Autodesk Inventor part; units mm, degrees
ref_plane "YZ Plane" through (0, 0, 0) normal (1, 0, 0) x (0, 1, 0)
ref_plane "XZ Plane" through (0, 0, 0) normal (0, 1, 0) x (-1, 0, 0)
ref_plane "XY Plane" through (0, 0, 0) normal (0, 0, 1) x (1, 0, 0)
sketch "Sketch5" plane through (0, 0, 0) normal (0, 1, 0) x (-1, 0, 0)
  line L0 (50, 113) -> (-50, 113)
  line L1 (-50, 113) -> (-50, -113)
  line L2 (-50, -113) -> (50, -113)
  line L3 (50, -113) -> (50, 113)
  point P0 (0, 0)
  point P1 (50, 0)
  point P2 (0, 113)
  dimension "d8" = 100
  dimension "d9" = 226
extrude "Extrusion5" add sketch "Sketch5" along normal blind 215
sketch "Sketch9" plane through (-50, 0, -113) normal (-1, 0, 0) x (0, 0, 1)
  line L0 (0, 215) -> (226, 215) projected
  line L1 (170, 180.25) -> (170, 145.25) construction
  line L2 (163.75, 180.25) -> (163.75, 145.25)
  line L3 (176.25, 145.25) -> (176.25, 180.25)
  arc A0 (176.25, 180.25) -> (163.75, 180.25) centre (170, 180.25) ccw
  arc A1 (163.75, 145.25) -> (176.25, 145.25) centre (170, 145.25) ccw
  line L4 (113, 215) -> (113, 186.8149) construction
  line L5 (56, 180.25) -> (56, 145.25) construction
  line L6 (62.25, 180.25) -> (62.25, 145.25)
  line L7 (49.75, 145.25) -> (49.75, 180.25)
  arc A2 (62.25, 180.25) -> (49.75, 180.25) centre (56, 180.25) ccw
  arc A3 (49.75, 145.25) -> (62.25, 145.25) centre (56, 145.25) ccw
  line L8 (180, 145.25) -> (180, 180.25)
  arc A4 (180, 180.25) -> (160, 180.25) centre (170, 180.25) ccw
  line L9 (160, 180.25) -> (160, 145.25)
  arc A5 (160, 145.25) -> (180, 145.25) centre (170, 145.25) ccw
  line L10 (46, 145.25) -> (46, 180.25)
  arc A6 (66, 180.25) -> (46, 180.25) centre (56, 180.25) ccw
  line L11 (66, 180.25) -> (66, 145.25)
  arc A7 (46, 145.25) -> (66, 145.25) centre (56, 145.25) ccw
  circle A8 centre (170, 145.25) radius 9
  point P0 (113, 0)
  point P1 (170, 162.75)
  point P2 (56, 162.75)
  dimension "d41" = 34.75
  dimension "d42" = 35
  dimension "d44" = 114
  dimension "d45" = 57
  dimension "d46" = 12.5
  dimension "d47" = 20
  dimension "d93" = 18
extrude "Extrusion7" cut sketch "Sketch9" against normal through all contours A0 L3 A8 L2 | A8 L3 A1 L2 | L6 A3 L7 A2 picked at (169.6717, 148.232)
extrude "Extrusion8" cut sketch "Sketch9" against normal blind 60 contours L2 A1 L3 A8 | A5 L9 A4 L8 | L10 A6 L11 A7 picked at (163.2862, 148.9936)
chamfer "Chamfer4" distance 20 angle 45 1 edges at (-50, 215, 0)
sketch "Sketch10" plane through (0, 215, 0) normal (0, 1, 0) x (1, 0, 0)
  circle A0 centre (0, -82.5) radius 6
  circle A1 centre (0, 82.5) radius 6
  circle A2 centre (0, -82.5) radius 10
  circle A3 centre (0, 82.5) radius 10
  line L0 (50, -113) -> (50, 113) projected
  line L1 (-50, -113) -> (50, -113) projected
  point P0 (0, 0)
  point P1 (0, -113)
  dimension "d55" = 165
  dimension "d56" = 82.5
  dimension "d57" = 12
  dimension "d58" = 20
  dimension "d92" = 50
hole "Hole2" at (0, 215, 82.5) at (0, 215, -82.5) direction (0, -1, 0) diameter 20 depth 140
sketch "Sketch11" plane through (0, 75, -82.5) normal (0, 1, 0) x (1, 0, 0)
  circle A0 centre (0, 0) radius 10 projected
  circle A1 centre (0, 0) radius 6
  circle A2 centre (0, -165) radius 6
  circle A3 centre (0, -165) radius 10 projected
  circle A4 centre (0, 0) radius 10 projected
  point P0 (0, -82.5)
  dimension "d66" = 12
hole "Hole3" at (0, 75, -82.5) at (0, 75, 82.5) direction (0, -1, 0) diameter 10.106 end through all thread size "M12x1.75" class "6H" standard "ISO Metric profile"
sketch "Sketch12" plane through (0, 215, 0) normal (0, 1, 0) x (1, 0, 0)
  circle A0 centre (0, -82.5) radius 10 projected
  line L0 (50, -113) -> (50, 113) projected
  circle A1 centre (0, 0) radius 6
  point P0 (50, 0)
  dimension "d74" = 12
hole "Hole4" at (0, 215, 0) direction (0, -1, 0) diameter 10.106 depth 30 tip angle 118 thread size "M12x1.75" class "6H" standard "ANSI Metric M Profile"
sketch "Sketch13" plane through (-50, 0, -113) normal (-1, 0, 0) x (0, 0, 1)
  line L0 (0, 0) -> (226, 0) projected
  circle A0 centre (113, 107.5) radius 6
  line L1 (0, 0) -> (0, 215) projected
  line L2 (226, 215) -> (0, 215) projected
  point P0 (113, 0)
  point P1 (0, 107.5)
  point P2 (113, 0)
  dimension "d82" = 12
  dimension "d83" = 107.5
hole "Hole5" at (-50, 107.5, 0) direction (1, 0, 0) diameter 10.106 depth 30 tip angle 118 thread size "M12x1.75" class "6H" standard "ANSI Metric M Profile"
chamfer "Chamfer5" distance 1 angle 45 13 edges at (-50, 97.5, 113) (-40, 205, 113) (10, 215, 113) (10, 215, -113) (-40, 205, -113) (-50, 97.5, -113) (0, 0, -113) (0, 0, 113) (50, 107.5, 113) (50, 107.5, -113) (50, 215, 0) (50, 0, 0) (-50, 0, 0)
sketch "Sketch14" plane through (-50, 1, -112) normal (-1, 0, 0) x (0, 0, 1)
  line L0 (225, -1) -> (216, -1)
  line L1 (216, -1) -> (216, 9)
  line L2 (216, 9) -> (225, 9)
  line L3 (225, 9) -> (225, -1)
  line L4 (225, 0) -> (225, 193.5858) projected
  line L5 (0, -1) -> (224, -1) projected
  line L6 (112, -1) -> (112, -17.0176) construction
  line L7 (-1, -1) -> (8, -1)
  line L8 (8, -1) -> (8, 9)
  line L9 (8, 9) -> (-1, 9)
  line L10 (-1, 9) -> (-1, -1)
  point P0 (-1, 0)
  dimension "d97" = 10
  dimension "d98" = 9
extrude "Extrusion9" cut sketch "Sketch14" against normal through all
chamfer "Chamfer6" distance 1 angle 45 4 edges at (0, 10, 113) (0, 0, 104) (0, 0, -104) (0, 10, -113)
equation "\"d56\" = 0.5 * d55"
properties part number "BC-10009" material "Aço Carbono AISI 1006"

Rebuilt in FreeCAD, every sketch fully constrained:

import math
import FreeCAD as App
import Part
import Sketcher


def edges_at(feature, points):
    """Names of the edges that pass closest to the given points."""
    edges = feature.Shape.Edges
    near = lambda p: min(range(len(edges)), key=lambda i: edges[i].distToShape(Part.Vertex(*p))[0])
    return sorted({f"Edge{near(p) + 1}" for p in points})


def add_polygon(sketch, points):
    """Adds a closed chain of lines whose ends are joined by coincident constraints."""
    first, n = sketch.GeometryCount, len(points)
    for a, b in zip(points, points[1:] + points[:1]):
        sketch.addGeometry(Part.LineSegment(App.Vector(*a, 0), App.Vector(*b, 0)), False)
    for i in range(n):
        sketch.addConstraint(Sketcher.Constraint("Coincident", first + i, 2, first + (i + 1) % n, 1))

doc = App.newDocument("Part")
body = doc.addObject("PartDesign::Body", "Body")

# Sketch on XZ plane
sketch1 = body.newObject("Sketcher::SketchObject", "Sketch")
sketch1.AttachmentSupport = (doc.getObject("XZ_Plane"), [""])
sketch1.MapMode = "FlatFace"
add_polygon(sketch1, [(-50, -113), (-50, 113), (50, 113), (50, -113)])  # lines 0-3
sketch1.addConstraint(Sketcher.Constraint("Vertical", 0))
sketch1.addConstraint(Sketcher.Constraint("Horizontal", 1))
sketch1.addConstraint(Sketcher.Constraint("Vertical", 2))
sketch1.addConstraint(Sketcher.Constraint("Horizontal", 3))
sketch1.addConstraint(Sketcher.Constraint("Symmetric", 0, 2, 2, 2, -1, 1))
sketch1.addConstraint(Sketcher.Constraint("DistanceX", 1, 1, 1, 2, 100.0))
sketch1.addConstraint(Sketcher.Constraint("DistanceY", 0, 1, 0, 2, 226.0))
pad1 = body.newObject("PartDesign::Pad", "Pad")
pad1.Profile = sketch1
pad1.Length = 215
pad1.Reversed = True

# Sketch on YZ plane
sketch2 = body.newObject("Sketcher::SketchObject", "Sketch001")
sketch2.AttachmentSupport = (doc.getObject("YZ_Plane"), [""])
sketch2.MapMode = "FlatFace"
sketch2.AttachmentOffset = App.Placement(App.Vector(0, 0, -50), App.Rotation())
sketch2.addGeometry(Part.ArcOfCircle(Part.Circle(App.Vector(180, 57, 0), App.Vector(0, 0, 1), 6), math.radians(-90), math.radians(90)), False)
sketch2.addGeometry(Part.LineSegment(App.Vector(180, 51, 0), App.Vector(145, 51, 0)), False)
sketch2.addGeometry(Part.ArcOfCircle(Part.Circle(App.Vector(145, 57, 0), App.Vector(0, 0, 1), 6), math.radians(90), math.radians(270)), False)
sketch2.addGeometry(Part.LineSegment(App.Vector(145, 63, 0), App.Vector(180, 63, 0)), False)
sketch2.addGeometry(Part.LineSegment(App.Vector(145, -51, 0), App.Vector(180, -51, 0)), False)
sketch2.addGeometry(Part.ArcOfCircle(Part.Circle(App.Vector(180, -57, 0), App.Vector(0, 0, 1), 6), math.radians(-90), math.radians(90)), False)
sketch2.addGeometry(Part.LineSegment(App.Vector(180, -63, 0), App.Vector(145, -63, 0)), False)
sketch2.addGeometry(Part.ArcOfCircle(Part.Circle(App.Vector(145, -57, 0), App.Vector(0, 0, 1), 6), math.radians(90), math.radians(270)), False)
sketch2.addConstraint(Sketcher.Constraint("Tangent", 0, 1, 1, 1))
sketch2.addConstraint(Sketcher.Constraint("Tangent", 1, 2, 2, 2))
sketch2.addConstraint(Sketcher.Constraint("Tangent", 2, 1, 3, 1))
sketch2.addConstraint(Sketcher.Constraint("Tangent", 3, 2, 0, 2))
sketch2.addConstraint(Sketcher.Constraint("Tangent", 4, 2, 5, 2))
sketch2.addConstraint(Sketcher.Constraint("Tangent", 5, 1, 6, 1))
sketch2.addConstraint(Sketcher.Constraint("Tangent", 6, 2, 7, 2))
sketch2.addConstraint(Sketcher.Constraint("Tangent", 7, 1, 4, 1))
sketch2.addConstraint(Sketcher.Constraint("Horizontal", 1))
sketch2.addConstraint(Sketcher.Constraint("Horizontal", 3))
sketch2.addConstraint(Sketcher.Constraint("Horizontal", 4))
sketch2.addConstraint(Sketcher.Constraint("Horizontal", 6))
sketch2.addConstraint(Sketcher.Constraint("Equal", 2, 5))
sketch2.addConstraint(Sketcher.Constraint("Symmetric", 0, 3, 5, 3, -1))
sketch2.addConstraint(Sketcher.Constraint("Vertical", 2, 3, 7, 3))
sketch2.addConstraint(Sketcher.Constraint("DistanceX", 1, 2, 1, 1, 35.0))
sketch2.addConstraint(Sketcher.Constraint("Radius", 0, 6.25))
sketch2.addConstraint(Sketcher.Constraint("DistanceY", -1, 1, 0, 3, 57.0))
sketch2.addConstraint(Sketcher.Constraint("DistanceX", -1, 1, 0, 3, 180.25))
pocket1 = body.newObject("PartDesign::Pocket", "Pocket")
pocket1.Profile = sketch2
pocket1.Type = "ThroughAll"
pocket1.Reversed = True

# Sketch on YZ plane
sketch3 = body.newObject("Sketcher::SketchObject", "Sketch002")
sketch3.AttachmentSupport = (doc.getObject("YZ_Plane"), [""])
sketch3.MapMode = "FlatFace"
sketch3.AttachmentOffset = App.Placement(App.Vector(0, 0, -50), App.Rotation())
sketch3.addGeometry(Part.ArcOfCircle(Part.Circle(App.Vector(145, 57, 0), App.Vector(0, 0, 1), 10), math.radians(90), math.radians(270)), False)
sketch3.addGeometry(Part.LineSegment(App.Vector(145, 67, 0), App.Vector(180, 67, 0)), False)
sketch3.addGeometry(Part.ArcOfCircle(Part.Circle(App.Vector(180, 57, 0), App.Vector(0, 0, 1), 10), math.radians(-90), math.radians(90)), False)
sketch3.addGeometry(Part.LineSegment(App.Vector(180, 47, 0), App.Vector(145, 47, 0)), False)
sketch3.addGeometry(Part.LineSegment(App.Vector(145, 51, 0), App.Vector(180, 51, 0)), False)
sketch3.addGeometry(Part.ArcOfCircle(Part.Circle(App.Vector(180, 57, 0), App.Vector(0, 0, 1), 6), math.radians(-90), math.radians(90)), False)
sketch3.addGeometry(Part.LineSegment(App.Vector(180, 63, 0), App.Vector(145, 63, 0)), False)
sketch3.addGeometry(Part.ArcOfCircle(Part.Circle(App.Vector(145, 57, 0), App.Vector(0, 0, 1), 6), math.radians(90), math.radians(270)), False)
sketch3.addGeometry(Part.LineSegment(App.Vector(180, -67, 0), App.Vector(145, -67, 0)), False)
sketch3.addGeometry(Part.ArcOfCircle(Part.Circle(App.Vector(145, -57, 0), App.Vector(0, 0, 1), 10), math.radians(90), math.radians(270)), False)
sketch3.addGeometry(Part.LineSegment(App.Vector(145, -47, 0), App.Vector(180, -47, 0)), False)
sketch3.addGeometry(Part.ArcOfCircle(Part.Circle(App.Vector(180, -57, 0), App.Vector(0, 0, 1), 10), math.radians(-90), math.radians(90)), False)
sketch3.addGeometry(Part.ArcOfCircle(Part.Circle(App.Vector(180, -57, 0), App.Vector(0, 0, 1), 6), math.radians(-90), math.radians(90)), False)
sketch3.addGeometry(Part.LineSegment(App.Vector(180, -51, 0), App.Vector(145, -51, 0)), False)
sketch3.addGeometry(Part.ArcOfCircle(Part.Circle(App.Vector(145, -57, 0), App.Vector(0, 0, 1), 6), math.radians(90), math.radians(270)), False)
sketch3.addGeometry(Part.LineSegment(App.Vector(145, -63, 0), App.Vector(180, -63, 0)), False)
sketch3.addConstraint(Sketcher.Constraint("Tangent", 0, 1, 1, 1))
sketch3.addConstraint(Sketcher.Constraint("Tangent", 1, 2, 2, 2))
sketch3.addConstraint(Sketcher.Constraint("Tangent", 2, 1, 3, 1))
sketch3.addConstraint(Sketcher.Constraint("Tangent", 3, 2, 0, 2))
sketch3.addConstraint(Sketcher.Constraint("Tangent", 4, 2, 5, 1))
sketch3.addConstraint(Sketcher.Constraint("Tangent", 5, 2, 6, 1))
sketch3.addConstraint(Sketcher.Constraint("Tangent", 6, 2, 7, 1))
sketch3.addConstraint(Sketcher.Constraint("Tangent", 7, 2, 4, 1))
sketch3.addConstraint(Sketcher.Constraint("Tangent", 8, 2, 9, 2))
sketch3.addConstraint(Sketcher.Constraint("Tangent", 9, 1, 10, 1))
sketch3.addConstraint(Sketcher.Constraint("Tangent", 10, 2, 11, 2))
sketch3.addConstraint(Sketcher.Constraint("Tangent", 11, 1, 8, 1))
sketch3.addConstraint(Sketcher.Constraint("Tangent", 12, 2, 13, 1))
sketch3.addConstraint(Sketcher.Constraint("Tangent", 13, 2, 14, 1))
sketch3.addConstraint(Sketcher.Constraint("Tangent", 14, 2, 15, 1))
sketch3.addConstraint(Sketcher.Constraint("Tangent", 15, 2, 12, 1))
sketch3.addConstraint(Sketcher.Constraint("Horizontal", 1))
sketch3.addConstraint(Sketcher.Constraint("Horizontal", 3))
sketch3.addConstraint(Sketcher.Constraint("Horizontal", 4))
sketch3.addConstraint(Sketcher.Constraint("Horizontal", 6))
sketch3.addConstraint(Sketcher.Constraint("Horizontal", 8))
sketch3.addConstraint(Sketcher.Constraint("Horizontal", 10))
sketch3.addConstraint(Sketcher.Constraint("Horizontal", 13))
sketch3.addConstraint(Sketcher.Constraint("Horizontal", 15))
sketch3.addConstraint(Sketcher.Constraint("Coincident", 5, 3, 2, 3))
sketch3.addConstraint(Sketcher.Constraint("Coincident", 12, 3, 11, 3))
sketch3.addConstraint(Sketcher.Constraint("Equal", 2, 9))
sketch3.addConstraint(Sketcher.Constraint("Equal", 7, 12))
sketch3.addConstraint(Sketcher.Constraint("Symmetric", 0, 3, 9, 3, -1))
sketch3.addConstraint(Sketcher.Constraint("Vertical", 7, 3, 9, 3))
sketch3.addConstraint(Sketcher.Constraint("Vertical", 5, 3, 11, 3))
sketch3.addConstraint(Sketcher.Constraint("Vertical", 7, 3, 14, 3))
sketch3.addConstraint(Sketcher.Constraint("Radius", 0, 10.0))
sketch3.addConstraint(Sketcher.Constraint("DistanceX", 1, 1, 1, 2, 35.0))
sketch3.addConstraint(Sketcher.Constraint("Radius", 5, 6.25))
sketch3.addConstraint(Sketcher.Constraint("DistanceY", -1, 1, 0, 3, 57.0))
sketch3.addConstraint(Sketcher.Constraint("DistanceX", -1, 1, 0, 3, 145.25))
pocket2 = body.newObject("PartDesign::Pocket", "Pocket001")
pocket2.Profile = sketch3
pocket2.Length = 60
pocket2.Reversed = True
doc.recompute()

chamfer = body.newObject("PartDesign::Chamfer", "Chamfer")
chamfer.Base = (pocket2, edges_at(pocket2, [(-50, 215, 0)]))
chamfer.Size = 20

# Sketch on XZ plane
sketch4 = body.newObject("Sketcher::SketchObject", "Sketch003")
sketch4.AttachmentSupport = (doc.getObject("XZ_Plane"), [""])
sketch4.MapMode = "FlatFace"
sketch4.AttachmentOffset = App.Placement(App.Vector(0, 0, -215), App.Rotation())
sketch4.addGeometry(Part.Circle(App.Vector(0, 82, 0), App.Vector(0, 0, 1), 10), False)
sketch4.addGeometry(Part.Circle(App.Vector(0, -82, 0), App.Vector(0, 0, 1), 10), False)
sketch4.addConstraint(Sketcher.Constraint("Equal", 0, 1))
sketch4.addConstraint(Sketcher.Constraint("Symmetric", 0, 3, 1, 3, -1, 1))
sketch4.addConstraint(Sketcher.Constraint("PointOnObject", 0, 3, -2))
sketch4.addConstraint(Sketcher.Constraint("Diameter", 0, 20.0))
sketch4.addConstraint(Sketcher.Constraint("DistanceY", 1, 3, 0, 3, 165.0))
doc.recompute()
hole = body.newObject("PartDesign::Hole", "Hole")
hole.Profile = sketch4
hole.ThreadType = "None"
hole.Diameter = 20
hole.DepthType = "Dimension"
hole.Depth = 140
hole.DrillPoint = "Flat"
hole.Reversed = True

# Sketch on XZ plane
sketch5 = body.newObject("Sketcher::SketchObject", "Sketch004")
sketch5.AttachmentSupport = (doc.getObject("XZ_Plane"), [""])
sketch5.MapMode = "FlatFace"
sketch5.AttachmentOffset = App.Placement(App.Vector(0, 0, -75), App.Rotation())
sketch5.addGeometry(Part.Circle(App.Vector(0, -82, 0), App.Vector(0, 0, 1), 5), False)
sketch5.addGeometry(Part.Circle(App.Vector(0, 82, 0), App.Vector(0, 0, 1), 5), False)
sketch5.addConstraint(Sketcher.Constraint("Equal", 0, 1))
sketch5.addConstraint(Sketcher.Constraint("Symmetric", 0, 3, 1, 3, -1, 1))
sketch5.addConstraint(Sketcher.Constraint("PointOnObject", 0, 3, -2))
sketch5.addConstraint(Sketcher.Constraint("Diameter", 0, 10.106))
sketch5.addConstraint(Sketcher.Constraint("DistanceY", 0, 3, 1, 3, 165.0))
doc.recompute()
hole2 = body.newObject("PartDesign::Hole", "Hole001")
hole2.Profile = sketch5
hole2.ThreadType = "None"
hole2.Diameter = 10.106
hole2.DepthType = "ThroughAll"
hole2.Reversed = True

# Sketch on XZ plane
sketch6 = body.newObject("Sketcher::SketchObject", "Sketch005")
sketch6.AttachmentSupport = (doc.getObject("XZ_Plane"), [""])
sketch6.MapMode = "FlatFace"
sketch6.AttachmentOffset = App.Placement(App.Vector(0, 0, -215), App.Rotation())
sketch6.addGeometry(Part.Circle(App.Vector(0, 0, 0), App.Vector(0, 0, 1), 5), False)
sketch6.addConstraint(Sketcher.Constraint("Coincident", 0, 3, -1, 1))
sketch6.addConstraint(Sketcher.Constraint("Diameter", 0, 10.106))
doc.recompute()
hole3 = body.newObject("PartDesign::Hole", "Hole002")
hole3.Profile = sketch6
hole3.ThreadType = "None"
hole3.Diameter = 10.106
hole3.DepthType = "Dimension"
hole3.Depth = 30
hole3.DrillPoint = "Angled"
hole3.DrillPointAngle = 118
hole3.Reversed = True

# Sketch on YZ plane
sketch7 = body.newObject("Sketcher::SketchObject", "Sketch006")
sketch7.AttachmentSupport = (doc.getObject("YZ_Plane"), [""])
sketch7.MapMode = "FlatFace"
sketch7.AttachmentOffset = App.Placement(App.Vector(0, 0, -50), App.Rotation())
sketch7.addGeometry(Part.Circle(App.Vector(108, 0, 0), App.Vector(0, 0, 1), 5), False)
sketch7.addConstraint(Sketcher.Constraint("PointOnObject", 0, 3, -1))
sketch7.addConstraint(Sketcher.Constraint("Diameter", 0, 10.106))
sketch7.addConstraint(Sketcher.Constraint("DistanceX", -1, 1, 0, 3, 107.5))
doc.recompute()
hole4 = body.newObject("PartDesign::Hole", "Hole003")
hole4.Profile = sketch7
hole4.ThreadType = "None"
hole4.Diameter = 10.106
hole4.DepthType = "Dimension"
hole4.Depth = 30
hole4.DrillPoint = "Angled"
hole4.DrillPointAngle = 118
hole4.Reversed = True
doc.recompute()

chamfer2 = body.newObject("PartDesign::Chamfer", "Chamfer001")
chamfer2.Base = (hole4, edges_at(hole4, [
    (-50, 97.5, 113),
    (-40, 205, 113),
    (10, 215, 113),
    (10, 215, -113),
    (-40, 205, -113),
    (-50, 97.5, -113),
    (0, 0, -113),
    (0, 0, 113),
    (50, 107.5, 113),
    (50, 107.5, -113),
    (50, 215, 0),
    (50, 0, 0),
    (-50, 0, 0),
]))
chamfer2.Size = 1

# Sketch on YZ plane
sketch8 = body.newObject("Sketcher::SketchObject", "Sketch007")
sketch8.AttachmentSupport = (doc.getObject("YZ_Plane"), [""])
sketch8.MapMode = "FlatFace"
sketch8.AttachmentOffset = App.Placement(App.Vector(0, 0, -50), App.Rotation())
add_polygon(sketch8, [(0, -113), (0, -104), (10, -104), (10, -113)])  # lines 0-3
add_polygon(sketch8, [(0, 104), (0, 113), (10, 113), (10, 104)])  # lines 4-7
sketch8.addConstraint(Sketcher.Constraint("Vertical", 0))
sketch8.addConstraint(Sketcher.Constraint("Horizontal", 1))
sketch8.addConstraint(Sketcher.Constraint("Vertical", 2))
sketch8.addConstraint(Sketcher.Constraint("Horizontal", 3))
sketch8.addConstraint(Sketcher.Constraint("Vertical", 4))
sketch8.addConstraint(Sketcher.Constraint("Horizontal", 5))
sketch8.addConstraint(Sketcher.Constraint("Vertical", 6))
sketch8.addConstraint(Sketcher.Constraint("Horizontal", 7))
sketch8.addConstraint(Sketcher.Constraint("Symmetric", 3, 2, 4, 2, -1, 1))
sketch8.addConstraint(Sketcher.Constraint("Symmetric", 1, 2, 6, 2, -1))
sketch8.addConstraint(Sketcher.Constraint("PointOnObject", 0, 2, -2))
sketch8.addConstraint(Sketcher.Constraint("DistanceX", 1, 1, 1, 2, 10.0))
sketch8.addConstraint(Sketcher.Constraint("DistanceY", 0, 1, 0, 2, 9.0))
sketch8.addConstraint(Sketcher.Constraint("DistanceY", 0, 2, -1, 1, 104.0))
pocket3 = body.newObject("PartDesign::Pocket", "Pocket002")
pocket3.Profile = sketch8
pocket3.Type = "ThroughAll"
pocket3.Reversed = True
doc.recompute()

chamfer3 = body.newObject("PartDesign::Chamfer", "Chamfer002")
chamfer3.Base = (pocket3, edges_at(pocket3, [
    (0, 10, 113),
    (0, 0, 104),
    (0, 0, -104),
    (0, 10, -113),
]))
chamfer3.Size = 1

doc.recompute()
